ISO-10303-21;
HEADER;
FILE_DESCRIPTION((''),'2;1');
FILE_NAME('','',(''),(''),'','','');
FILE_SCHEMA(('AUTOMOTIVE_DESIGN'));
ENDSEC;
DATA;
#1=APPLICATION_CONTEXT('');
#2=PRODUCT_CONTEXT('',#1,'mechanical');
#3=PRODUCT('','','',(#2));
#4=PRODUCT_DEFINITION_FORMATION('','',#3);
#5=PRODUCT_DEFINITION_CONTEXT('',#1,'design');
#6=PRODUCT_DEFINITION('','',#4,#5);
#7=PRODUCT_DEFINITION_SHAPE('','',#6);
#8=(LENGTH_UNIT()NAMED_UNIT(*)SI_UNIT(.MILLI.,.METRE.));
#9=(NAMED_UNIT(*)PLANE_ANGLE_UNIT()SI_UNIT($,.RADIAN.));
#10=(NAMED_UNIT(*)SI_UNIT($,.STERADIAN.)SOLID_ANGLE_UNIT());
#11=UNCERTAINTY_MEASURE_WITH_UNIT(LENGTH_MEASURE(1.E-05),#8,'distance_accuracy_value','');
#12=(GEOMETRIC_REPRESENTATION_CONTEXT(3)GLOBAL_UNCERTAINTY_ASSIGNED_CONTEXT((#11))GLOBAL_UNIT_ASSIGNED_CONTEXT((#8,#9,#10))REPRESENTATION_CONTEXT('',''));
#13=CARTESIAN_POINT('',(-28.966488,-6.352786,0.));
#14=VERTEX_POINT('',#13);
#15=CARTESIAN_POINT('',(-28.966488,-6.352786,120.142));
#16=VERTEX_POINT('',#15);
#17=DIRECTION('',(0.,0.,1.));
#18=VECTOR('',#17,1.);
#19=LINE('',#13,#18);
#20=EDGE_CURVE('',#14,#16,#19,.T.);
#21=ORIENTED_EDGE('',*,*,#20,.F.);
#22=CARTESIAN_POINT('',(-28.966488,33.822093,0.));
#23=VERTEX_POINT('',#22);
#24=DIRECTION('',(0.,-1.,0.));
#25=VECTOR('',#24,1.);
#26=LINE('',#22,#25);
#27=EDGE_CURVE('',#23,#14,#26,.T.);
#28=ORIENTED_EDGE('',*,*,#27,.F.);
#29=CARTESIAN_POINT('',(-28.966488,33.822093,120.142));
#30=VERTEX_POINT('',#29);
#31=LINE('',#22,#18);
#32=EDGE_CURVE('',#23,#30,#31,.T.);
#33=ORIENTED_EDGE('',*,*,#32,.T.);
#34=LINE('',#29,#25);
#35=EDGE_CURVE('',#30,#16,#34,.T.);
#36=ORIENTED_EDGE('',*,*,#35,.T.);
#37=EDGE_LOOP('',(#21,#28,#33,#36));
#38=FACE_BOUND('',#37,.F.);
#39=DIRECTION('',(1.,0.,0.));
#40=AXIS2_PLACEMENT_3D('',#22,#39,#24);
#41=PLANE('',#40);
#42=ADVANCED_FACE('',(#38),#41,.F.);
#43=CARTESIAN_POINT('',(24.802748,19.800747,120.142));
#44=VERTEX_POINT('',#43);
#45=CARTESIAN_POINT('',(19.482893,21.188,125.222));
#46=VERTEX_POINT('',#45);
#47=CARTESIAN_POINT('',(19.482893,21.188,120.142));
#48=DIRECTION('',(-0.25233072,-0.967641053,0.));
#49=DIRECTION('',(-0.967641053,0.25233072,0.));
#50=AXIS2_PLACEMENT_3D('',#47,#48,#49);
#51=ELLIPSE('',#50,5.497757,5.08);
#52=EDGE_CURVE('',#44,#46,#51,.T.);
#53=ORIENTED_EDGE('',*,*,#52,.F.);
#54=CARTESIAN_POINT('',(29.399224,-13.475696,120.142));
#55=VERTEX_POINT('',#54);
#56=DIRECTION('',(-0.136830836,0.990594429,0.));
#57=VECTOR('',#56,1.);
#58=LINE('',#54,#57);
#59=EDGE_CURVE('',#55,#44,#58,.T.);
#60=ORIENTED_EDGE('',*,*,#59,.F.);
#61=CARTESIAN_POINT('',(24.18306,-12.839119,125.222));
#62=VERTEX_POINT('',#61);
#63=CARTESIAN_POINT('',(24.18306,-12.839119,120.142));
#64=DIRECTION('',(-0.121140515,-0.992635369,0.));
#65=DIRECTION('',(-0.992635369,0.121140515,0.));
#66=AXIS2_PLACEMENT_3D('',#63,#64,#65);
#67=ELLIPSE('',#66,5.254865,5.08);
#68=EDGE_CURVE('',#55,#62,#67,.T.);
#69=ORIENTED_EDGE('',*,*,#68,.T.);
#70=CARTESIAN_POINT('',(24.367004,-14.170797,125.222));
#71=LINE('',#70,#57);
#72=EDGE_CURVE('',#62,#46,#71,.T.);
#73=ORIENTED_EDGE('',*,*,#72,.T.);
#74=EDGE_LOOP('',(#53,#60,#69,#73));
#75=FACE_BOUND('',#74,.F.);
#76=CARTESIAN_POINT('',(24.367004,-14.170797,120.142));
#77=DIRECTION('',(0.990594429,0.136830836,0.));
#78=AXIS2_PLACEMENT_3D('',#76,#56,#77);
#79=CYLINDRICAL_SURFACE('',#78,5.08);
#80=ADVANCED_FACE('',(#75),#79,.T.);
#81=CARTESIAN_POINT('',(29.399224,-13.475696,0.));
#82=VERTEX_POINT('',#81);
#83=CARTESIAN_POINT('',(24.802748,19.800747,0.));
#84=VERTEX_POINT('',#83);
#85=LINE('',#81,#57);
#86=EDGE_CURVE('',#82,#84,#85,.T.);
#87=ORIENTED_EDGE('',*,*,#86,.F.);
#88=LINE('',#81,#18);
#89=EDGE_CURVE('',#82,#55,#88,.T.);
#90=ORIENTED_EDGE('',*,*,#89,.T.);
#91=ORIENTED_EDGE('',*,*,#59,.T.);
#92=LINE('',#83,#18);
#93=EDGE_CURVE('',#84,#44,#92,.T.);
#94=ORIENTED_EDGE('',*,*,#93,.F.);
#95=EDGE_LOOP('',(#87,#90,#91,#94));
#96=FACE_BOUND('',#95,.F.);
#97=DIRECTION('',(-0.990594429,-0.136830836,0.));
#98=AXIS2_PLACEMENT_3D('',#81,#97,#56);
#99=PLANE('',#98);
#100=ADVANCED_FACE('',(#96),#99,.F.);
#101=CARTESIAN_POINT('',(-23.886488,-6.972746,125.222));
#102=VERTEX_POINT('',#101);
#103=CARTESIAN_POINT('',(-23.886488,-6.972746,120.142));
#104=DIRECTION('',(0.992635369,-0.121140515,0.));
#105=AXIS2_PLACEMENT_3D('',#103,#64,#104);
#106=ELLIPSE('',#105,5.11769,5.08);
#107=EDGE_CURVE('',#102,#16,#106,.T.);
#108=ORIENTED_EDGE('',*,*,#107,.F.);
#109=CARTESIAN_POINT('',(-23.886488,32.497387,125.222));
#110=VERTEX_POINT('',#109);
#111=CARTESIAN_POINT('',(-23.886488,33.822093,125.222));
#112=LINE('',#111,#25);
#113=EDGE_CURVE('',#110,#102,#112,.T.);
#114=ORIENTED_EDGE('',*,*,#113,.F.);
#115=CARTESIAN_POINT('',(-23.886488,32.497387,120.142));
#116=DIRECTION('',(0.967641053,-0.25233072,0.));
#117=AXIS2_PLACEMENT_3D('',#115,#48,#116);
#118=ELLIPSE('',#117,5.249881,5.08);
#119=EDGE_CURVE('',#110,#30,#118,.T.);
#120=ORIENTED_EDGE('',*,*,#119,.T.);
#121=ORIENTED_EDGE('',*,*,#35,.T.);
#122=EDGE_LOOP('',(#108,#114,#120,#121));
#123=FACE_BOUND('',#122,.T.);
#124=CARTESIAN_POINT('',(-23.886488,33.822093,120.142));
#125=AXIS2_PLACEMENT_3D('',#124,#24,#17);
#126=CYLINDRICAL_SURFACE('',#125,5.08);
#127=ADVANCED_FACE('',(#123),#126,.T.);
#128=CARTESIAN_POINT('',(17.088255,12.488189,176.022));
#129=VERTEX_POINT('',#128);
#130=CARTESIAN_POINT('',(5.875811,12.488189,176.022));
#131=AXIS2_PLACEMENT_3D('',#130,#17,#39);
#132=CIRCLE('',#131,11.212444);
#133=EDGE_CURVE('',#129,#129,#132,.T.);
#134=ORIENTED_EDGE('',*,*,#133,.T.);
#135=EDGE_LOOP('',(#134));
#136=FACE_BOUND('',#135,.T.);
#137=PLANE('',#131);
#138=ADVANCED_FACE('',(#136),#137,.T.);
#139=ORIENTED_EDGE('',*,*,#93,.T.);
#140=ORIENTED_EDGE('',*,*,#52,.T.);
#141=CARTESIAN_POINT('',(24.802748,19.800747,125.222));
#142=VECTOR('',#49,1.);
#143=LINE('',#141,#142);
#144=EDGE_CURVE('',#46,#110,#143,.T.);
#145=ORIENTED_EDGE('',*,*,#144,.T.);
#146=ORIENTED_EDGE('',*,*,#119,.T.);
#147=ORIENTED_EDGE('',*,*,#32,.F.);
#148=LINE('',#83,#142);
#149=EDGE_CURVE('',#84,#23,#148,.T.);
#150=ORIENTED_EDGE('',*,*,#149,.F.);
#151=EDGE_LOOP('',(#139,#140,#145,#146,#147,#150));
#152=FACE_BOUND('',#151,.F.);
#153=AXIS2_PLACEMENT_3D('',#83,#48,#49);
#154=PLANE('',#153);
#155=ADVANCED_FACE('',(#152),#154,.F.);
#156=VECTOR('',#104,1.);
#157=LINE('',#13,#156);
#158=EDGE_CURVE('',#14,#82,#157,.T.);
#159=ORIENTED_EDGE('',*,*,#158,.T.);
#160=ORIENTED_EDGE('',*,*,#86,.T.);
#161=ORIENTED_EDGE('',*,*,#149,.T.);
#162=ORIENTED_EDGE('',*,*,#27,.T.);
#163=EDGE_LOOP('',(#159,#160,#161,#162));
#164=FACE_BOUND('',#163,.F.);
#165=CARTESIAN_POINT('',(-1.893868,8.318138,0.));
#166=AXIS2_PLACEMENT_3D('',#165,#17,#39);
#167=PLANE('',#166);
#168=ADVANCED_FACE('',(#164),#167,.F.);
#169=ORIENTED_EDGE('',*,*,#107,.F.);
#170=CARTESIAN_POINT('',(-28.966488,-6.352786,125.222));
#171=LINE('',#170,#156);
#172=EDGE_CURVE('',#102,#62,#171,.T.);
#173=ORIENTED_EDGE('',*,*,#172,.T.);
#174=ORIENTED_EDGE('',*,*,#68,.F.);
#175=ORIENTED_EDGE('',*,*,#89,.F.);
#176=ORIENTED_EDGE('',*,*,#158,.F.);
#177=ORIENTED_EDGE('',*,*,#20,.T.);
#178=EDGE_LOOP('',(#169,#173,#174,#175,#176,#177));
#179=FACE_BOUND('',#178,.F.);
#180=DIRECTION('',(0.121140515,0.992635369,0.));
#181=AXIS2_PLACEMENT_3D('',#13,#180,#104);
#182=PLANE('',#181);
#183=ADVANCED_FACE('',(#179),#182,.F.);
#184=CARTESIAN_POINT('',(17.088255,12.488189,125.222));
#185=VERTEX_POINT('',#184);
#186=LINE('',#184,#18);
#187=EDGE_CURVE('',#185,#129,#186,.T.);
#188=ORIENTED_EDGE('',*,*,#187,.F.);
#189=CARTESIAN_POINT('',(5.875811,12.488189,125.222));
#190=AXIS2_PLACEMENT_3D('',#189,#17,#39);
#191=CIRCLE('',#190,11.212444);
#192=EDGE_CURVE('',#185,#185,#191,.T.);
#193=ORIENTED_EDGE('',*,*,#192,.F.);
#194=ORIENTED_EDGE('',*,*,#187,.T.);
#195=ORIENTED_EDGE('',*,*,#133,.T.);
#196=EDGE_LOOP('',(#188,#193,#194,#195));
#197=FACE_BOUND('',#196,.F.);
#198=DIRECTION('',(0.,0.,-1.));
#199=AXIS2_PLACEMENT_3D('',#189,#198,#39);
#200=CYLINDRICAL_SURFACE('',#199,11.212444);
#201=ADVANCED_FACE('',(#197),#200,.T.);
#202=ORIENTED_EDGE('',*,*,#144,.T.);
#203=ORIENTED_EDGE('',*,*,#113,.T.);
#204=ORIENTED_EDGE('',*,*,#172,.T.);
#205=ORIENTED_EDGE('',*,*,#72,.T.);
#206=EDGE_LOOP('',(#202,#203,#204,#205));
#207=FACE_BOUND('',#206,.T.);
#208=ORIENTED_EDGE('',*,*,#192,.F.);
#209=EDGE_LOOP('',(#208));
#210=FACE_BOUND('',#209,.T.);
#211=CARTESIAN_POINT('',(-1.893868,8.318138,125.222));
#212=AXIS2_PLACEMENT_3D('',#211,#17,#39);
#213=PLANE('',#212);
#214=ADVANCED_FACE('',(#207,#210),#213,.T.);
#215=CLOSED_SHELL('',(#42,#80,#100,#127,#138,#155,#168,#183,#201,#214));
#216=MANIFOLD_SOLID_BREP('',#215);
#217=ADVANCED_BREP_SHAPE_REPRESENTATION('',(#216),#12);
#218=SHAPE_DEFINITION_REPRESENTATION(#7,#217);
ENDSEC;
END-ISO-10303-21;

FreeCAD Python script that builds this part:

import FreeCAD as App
import Part
import Sketcher

V = App.Vector
Q = App.Units.Quantity


def edges_at(feature, points):
    """Names of the edges that pass closest to the given points."""
    edges = feature.Shape.Edges
    near = lambda p: min(range(len(edges)), key=lambda i: edges[i].distToShape(Part.Vertex(*p))[0])
    return sorted({f"Edge{near(p) + 1}" for p in points})

doc = App.newDocument("Part")
body = doc.addObject("PartDesign::Body", "Body")

# Sketch on XY plane
sketch1 = body.newObject("Sketcher::SketchObject", "Sketch")
sketch1.AttachmentSupport = (doc.getObject("XY_Plane"), [""])
sketch1.MapMode = "FlatFace"
sketch1.addGeometry([
    Part.LineSegment(V(25, 20, 0), V(-29, 34, 0)),
    Part.LineSegment(V(-29, 34, 0), V(-29, -6, 0)),
    Part.LineSegment(V(-29, -6, 0), V(29, -13, 0)),
    Part.LineSegment(V(29, -13, 0), V(25, 20, 0)),
], False)
sketch1.addConstraint([
    Sketcher.Constraint("Coincident", 0, 2, 1, 1),
    Sketcher.Constraint("Coincident", 1, 2, 2, 1),
    Sketcher.Constraint("Coincident", 2, 2, 3, 1),
    Sketcher.Constraint("Coincident", 3, 2, 0, 1),
    Sketcher.Constraint("Vertical", 1),
    Sketcher.Constraint("Distance", 3, 33.592399),
    Sketcher.Constraint("DistanceY", 1, 2, 1, 1, 40.174879),
    Sketcher.Constraint("DistanceX", -1, 1, 3, 2, 24.802748),
    Sketcher.Constraint("DistanceY", 2, 2, 1, 2, 7.12291),
    Sketcher.Constraint("Distance", 0, 55.567336),
    Sketcher.Constraint("Distance", 2, 58.798743),
    Sketcher.Constraint("DistanceY", -1, 1, 0, 2, 33.822093),
])
pad1 = body.newObject("PartDesign::Pad", "Pad")
pad1.Profile = sketch1
pad1.Length = Q("4.93 in")
doc.recompute()

fillet = body.newObject("PartDesign::Fillet", "Fillet")
fillet.Base = (pad1, edges_at(pad1, [(27.101, 3.163, 125.222)]))
fillet.Radius = Q("0.2 in")
doc.recompute()

fillet2 = body.newObject("PartDesign::Fillet", "Fillet001")
fillet2.Base = (fillet, edges_at(fillet, [(-28.966, 13.735, 125.222)]))
fillet2.Radius = Q("0.2 in")

# Sketch on XY plane
sketch2 = body.newObject("Sketcher::SketchObject", "Sketch001")
sketch2.AttachmentSupport = (doc.getObject("XY_Plane"), [""])
sketch2.MapMode = "FlatFace"
sketch2.AttachmentOffset = App.Placement(V(0, 0, 4.93 * 25.4), App.Rotation())
sketch2.addGeometry(Part.Circle(V(6, 12, 0), V(0, 0, 1), 11), False)
sketch2.addConstraint([
    Sketcher.Constraint("Diameter", 0, 22.424888),
    Sketcher.Constraint("DistanceX", -1, 1, 0, 3, 5.875811),
    Sketcher.Constraint("DistanceY", -1, 1, 0, 3, 12.488189),
])
pad2 = body.newObject("PartDesign::Pad", "Pad001")
pad2.Profile = sketch2
pad2.Length = Q("2 in")

doc.recompute()
